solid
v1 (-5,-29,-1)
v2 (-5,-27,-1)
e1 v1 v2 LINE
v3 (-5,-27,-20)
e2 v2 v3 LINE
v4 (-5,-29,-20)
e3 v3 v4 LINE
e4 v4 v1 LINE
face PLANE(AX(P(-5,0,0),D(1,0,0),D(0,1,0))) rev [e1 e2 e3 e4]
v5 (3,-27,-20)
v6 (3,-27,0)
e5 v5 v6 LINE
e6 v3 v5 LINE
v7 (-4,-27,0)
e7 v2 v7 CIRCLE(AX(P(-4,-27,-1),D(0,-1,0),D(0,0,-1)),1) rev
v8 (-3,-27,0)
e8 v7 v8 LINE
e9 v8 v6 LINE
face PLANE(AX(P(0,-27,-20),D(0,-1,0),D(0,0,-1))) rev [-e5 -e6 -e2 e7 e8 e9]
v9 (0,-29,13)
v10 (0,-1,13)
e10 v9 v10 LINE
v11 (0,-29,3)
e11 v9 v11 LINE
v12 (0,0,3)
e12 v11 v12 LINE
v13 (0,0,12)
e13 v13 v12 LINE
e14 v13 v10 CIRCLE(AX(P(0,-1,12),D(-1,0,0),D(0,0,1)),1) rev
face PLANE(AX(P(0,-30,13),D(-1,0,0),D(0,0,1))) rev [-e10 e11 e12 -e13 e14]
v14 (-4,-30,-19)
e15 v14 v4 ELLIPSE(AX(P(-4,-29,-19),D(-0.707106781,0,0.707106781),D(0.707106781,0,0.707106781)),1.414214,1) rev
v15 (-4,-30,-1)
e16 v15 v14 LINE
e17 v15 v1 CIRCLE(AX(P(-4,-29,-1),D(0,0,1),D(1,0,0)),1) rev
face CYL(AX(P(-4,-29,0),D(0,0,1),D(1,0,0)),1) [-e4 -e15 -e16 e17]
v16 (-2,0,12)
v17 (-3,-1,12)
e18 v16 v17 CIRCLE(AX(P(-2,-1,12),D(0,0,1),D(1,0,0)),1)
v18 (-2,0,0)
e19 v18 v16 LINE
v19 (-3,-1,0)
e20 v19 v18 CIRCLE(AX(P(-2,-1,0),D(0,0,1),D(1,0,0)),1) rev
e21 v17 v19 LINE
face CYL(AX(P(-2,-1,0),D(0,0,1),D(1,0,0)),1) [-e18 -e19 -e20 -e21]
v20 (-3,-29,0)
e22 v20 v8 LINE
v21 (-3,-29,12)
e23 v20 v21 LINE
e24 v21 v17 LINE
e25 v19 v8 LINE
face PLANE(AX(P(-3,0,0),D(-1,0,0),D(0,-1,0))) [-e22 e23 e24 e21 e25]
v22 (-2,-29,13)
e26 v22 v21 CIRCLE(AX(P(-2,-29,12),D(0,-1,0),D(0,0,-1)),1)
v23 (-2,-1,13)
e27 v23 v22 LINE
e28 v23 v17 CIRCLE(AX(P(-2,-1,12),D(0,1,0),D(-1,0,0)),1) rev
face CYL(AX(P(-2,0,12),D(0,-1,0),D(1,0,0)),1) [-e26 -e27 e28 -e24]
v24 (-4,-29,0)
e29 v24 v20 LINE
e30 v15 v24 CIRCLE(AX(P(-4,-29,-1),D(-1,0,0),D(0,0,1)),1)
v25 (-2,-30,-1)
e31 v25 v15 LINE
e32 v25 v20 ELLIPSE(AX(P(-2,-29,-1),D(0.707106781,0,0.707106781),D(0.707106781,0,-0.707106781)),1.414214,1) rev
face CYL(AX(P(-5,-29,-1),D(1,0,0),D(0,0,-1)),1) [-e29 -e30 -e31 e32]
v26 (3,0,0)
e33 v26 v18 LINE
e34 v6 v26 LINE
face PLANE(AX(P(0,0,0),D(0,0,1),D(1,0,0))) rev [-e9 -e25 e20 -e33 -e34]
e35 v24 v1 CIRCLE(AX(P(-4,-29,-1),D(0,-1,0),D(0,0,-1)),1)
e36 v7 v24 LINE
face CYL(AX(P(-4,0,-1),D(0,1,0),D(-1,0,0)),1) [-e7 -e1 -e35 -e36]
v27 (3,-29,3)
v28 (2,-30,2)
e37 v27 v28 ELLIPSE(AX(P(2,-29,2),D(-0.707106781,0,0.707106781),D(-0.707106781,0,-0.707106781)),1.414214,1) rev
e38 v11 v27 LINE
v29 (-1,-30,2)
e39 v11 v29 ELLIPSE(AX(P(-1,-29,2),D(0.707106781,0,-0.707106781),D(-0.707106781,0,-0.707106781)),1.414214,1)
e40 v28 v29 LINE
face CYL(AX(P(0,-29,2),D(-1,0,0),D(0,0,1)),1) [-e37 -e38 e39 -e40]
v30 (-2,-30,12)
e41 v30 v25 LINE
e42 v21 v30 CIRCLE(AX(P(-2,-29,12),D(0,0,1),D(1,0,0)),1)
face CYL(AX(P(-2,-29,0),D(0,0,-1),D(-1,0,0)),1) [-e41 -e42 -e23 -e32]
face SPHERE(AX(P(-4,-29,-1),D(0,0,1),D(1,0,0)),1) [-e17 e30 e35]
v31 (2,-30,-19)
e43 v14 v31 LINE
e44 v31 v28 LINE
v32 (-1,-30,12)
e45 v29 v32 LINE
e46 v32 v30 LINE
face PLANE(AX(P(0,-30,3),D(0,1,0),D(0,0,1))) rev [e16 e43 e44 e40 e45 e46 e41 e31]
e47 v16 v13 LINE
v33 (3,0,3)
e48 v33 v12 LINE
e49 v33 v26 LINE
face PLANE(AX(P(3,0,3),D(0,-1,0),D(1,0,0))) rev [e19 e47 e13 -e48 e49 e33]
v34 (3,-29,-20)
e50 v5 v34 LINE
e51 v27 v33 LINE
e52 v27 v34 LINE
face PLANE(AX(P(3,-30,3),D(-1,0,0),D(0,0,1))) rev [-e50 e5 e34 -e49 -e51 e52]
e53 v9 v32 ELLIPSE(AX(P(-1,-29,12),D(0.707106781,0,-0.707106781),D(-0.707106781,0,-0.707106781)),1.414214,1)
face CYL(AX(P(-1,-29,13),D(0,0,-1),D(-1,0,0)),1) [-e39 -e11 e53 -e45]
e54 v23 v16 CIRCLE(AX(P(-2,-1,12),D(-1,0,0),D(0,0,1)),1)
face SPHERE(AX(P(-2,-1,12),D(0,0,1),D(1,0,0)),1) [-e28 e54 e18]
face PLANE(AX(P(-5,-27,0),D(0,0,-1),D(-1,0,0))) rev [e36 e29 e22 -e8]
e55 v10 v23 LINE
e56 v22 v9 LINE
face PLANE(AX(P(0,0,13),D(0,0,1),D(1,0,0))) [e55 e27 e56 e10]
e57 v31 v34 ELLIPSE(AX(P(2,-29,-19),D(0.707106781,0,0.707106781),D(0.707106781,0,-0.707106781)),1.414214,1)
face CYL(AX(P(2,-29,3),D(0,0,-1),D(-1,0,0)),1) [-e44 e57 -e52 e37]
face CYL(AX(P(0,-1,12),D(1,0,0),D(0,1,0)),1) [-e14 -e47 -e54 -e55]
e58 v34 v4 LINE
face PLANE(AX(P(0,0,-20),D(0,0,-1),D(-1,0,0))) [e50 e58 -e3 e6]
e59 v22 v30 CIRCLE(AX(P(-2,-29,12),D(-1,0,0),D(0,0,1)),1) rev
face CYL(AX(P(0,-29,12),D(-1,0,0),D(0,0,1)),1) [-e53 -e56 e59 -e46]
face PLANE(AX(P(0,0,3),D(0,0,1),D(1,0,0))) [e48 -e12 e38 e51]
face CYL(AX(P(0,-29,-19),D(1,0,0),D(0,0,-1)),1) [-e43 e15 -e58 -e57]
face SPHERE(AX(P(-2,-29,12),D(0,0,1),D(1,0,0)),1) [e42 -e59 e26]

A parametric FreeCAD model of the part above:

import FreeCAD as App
import Part
import Sketcher
from FreeCAD import Vector
Q = App.Units.Quantity


def edges_at(feature, points):
    """Names of the edges that pass closest to the given points."""
    edges = feature.Shape.Edges
    near = lambda p: min(range(len(edges)), key=lambda i: edges[i].distToShape(Part.Vertex(*p))[0])
    return sorted({f"Edge{near(p) + 1}" for p in points})

doc = App.newDocument("Part")
body = doc.addObject("PartDesign::Body", "Body")

# Sketch on XY plane
sketch1 = body.newObject("Sketcher::SketchObject", "Sketch")
sketch1.AttachmentSupport = (doc.getObject("XY_Plane"), [""])
sketch1.MapMode = "FlatFace"
sketch1.addGeometry(Part.LineSegment(Vector(0, 0, 0), Vector(0, -30, 0)), False)
sketch1.addGeometry(Part.LineSegment(Vector(0, -30, 0), Vector(3, -30, 0)), False)
sketch1.addGeometry(Part.LineSegment(Vector(3, -30, 0), Vector(3, 0, 0)), False)
sketch1.addGeometry(Part.LineSegment(Vector(3, 0, 0), Vector(0, 0, 0)), False)
sketch1.addConstraint(Sketcher.Constraint("Coincident", 0, 2, 1, 1))
sketch1.addConstraint(Sketcher.Constraint("Coincident", 1, 2, 2, 1))
sketch1.addConstraint(Sketcher.Constraint("Coincident", 2, 2, 3, 1))
sketch1.addConstraint(Sketcher.Constraint("Coincident", 3, 2, 0, 1))
sketch1.addConstraint(Sketcher.Constraint("Vertical", 0))
sketch1.addConstraint(Sketcher.Constraint("Horizontal", 1))
sketch1.addConstraint(Sketcher.Constraint("Vertical", 2))
sketch1.addConstraint(Sketcher.Constraint("Horizontal", 3))
sketch1.addConstraint(Sketcher.Constraint("Coincident", 3, 2, -1, 1))
sketch1.addConstraint(Sketcher.Constraint("DistanceX", 1, 1, 1, 2, Q("3 mm")))
sketch1.addConstraint(Sketcher.Constraint("DistanceY", 0, 2, 0, 1, Q("30 mm")))
pad1 = body.newObject("PartDesign::Pad", "Pad")
pad1.Profile = sketch1
pad1.Length = 3

# Sketch on XY plane
sketch2 = body.newObject("Sketcher::SketchObject", "Sketch001")
sketch2.AttachmentSupport = (doc.getObject("XY_Plane"), [""])
sketch2.MapMode = "FlatFace"
sketch2.addGeometry(Part.LineSegment(Vector(3, -27, 0), Vector(3, -30, 0)), False)
sketch2.addGeometry(Part.LineSegment(Vector(3, -30, 0), Vector(0, -30, 0)), False)
sketch2.addGeometry(Part.LineSegment(Vector(0, -30, 0), Vector(0, -27, 0)), False)
sketch2.addGeometry(Part.LineSegment(Vector(0, -27, 0), Vector(3, -27, 0)), False)
sketch2.addConstraint(Sketcher.Constraint("Coincident", 0, 2, 1, 1))
sketch2.addConstraint(Sketcher.Constraint("Coincident", 1, 2, 2, 1))
sketch2.addConstraint(Sketcher.Constraint("Coincident", 2, 2, 3, 1))
sketch2.addConstraint(Sketcher.Constraint("Coincident", 3, 2, 0, 1))
sketch2.addConstraint(Sketcher.Constraint("Vertical", 0))
sketch2.addConstraint(Sketcher.Constraint("Horizontal", 1))
sketch2.addConstraint(Sketcher.Constraint("Vertical", 2))
sketch2.addConstraint(Sketcher.Constraint("Horizontal", 3))
sketch2.addConstraint(Sketcher.Constraint("PointOnObject", 1, 2, -2))
sketch2.addConstraint(Sketcher.Constraint("Equal", 3, 0))
sketch2.addConstraint(Sketcher.Constraint("DistanceX", 1, 2, 1, 1, Q("3 mm")))
sketch2.addConstraint(Sketcher.Constraint("DistanceY", 0, 2, -1, 1, Q("30 mm")))
pad2 = body.newObject("PartDesign::Pad", "Pad001")
pad2.Profile = sketch2
pad2.Length = 20
pad2.Reversed = True

# Sketch on YZ plane
sketch3 = body.newObject("Sketcher::SketchObject", "Sketch002")
sketch3.AttachmentSupport = (doc.getObject("YZ_Plane"), [""])
sketch3.MapMode = "FlatFace"
sketch3.addGeometry(Part.LineSegment(Vector(-27, -20, 0), Vector(-30, -20, 0)), False)
sketch3.addGeometry(Part.LineSegment(Vector(-30, -20, 0), Vector(-30, 0, 0)), False)
sketch3.addGeometry(Part.LineSegment(Vector(-30, 0, 0), Vector(-27, 0, 0)), False)
sketch3.addGeometry(Part.LineSegment(Vector(-27, 0, 0), Vector(-27, -20, 0)), False)
sketch3.addConstraint(Sketcher.Constraint("Coincident", 0, 2, 1, 1))
sketch3.addConstraint(Sketcher.Constraint("Coincident", 1, 2, 2, 1))
sketch3.addConstraint(Sketcher.Constraint("Coincident", 2, 2, 3, 1))
sketch3.addConstraint(Sketcher.Constraint("Coincident", 3, 2, 0, 1))
sketch3.addConstraint(Sketcher.Constraint("Horizontal", 0))
sketch3.addConstraint(Sketcher.Constraint("Vertical", 1))
sketch3.addConstraint(Sketcher.Constraint("Horizontal", 2))
sketch3.addConstraint(Sketcher.Constraint("Vertical", 3))
sketch3.addConstraint(Sketcher.Constraint("PointOnObject", 1, 2, -1))
sketch3.addConstraint(Sketcher.Constraint("DistanceX", 0, 2, 0, 1, Q("3 mm")))
sketch3.addConstraint(Sketcher.Constraint("DistanceY", 1, 1, 1, 2, Q("20 mm")))
sketch3.addConstraint(Sketcher.Constraint("DistanceX", 0, 2, -1, 1, Q("30 mm")))
pad3 = body.newObject("PartDesign::Pad", "Pad002")
pad3.Profile = sketch3
pad3.Length = 5
pad3.Reversed = True

# Sketch on YZ plane
sketch4 = body.newObject("Sketcher::SketchObject", "Sketch003")
sketch4.AttachmentSupport = (doc.getObject("YZ_Plane"), [""])
sketch4.MapMode = "FlatFace"
sketch4.addGeometry(Part.LineSegment(Vector(0, 0, 0), Vector(-30, 0, 0)), False)
sketch4.addGeometry(Part.LineSegment(Vector(-30, 0, 0), Vector(-30, 3, 0)), False)
sketch4.addGeometry(Part.LineSegment(Vector(-30, 3, 0), Vector(0, 3, 0)), False)
sketch4.addGeometry(Part.LineSegment(Vector(0, 3, 0), Vector(0, 0, 0)), False)
sketch4.addConstraint(Sketcher.Constraint("Coincident", 0, 2, 1, 1))
sketch4.addConstraint(Sketcher.Constraint("Coincident", 1, 2, 2, 1))
sketch4.addConstraint(Sketcher.Constraint("Coincident", 2, 2, 3, 1))
sketch4.addConstraint(Sketcher.Constraint("Coincident", 3, 2, 0, 1))
sketch4.addConstraint(Sketcher.Constraint("Horizontal", 0))
sketch4.addConstraint(Sketcher.Constraint("Vertical", 1))
sketch4.addConstraint(Sketcher.Constraint("Horizontal", 2))
sketch4.addConstraint(Sketcher.Constraint("Vertical", 3))
sketch4.addConstraint(Sketcher.Constraint("Coincident", 3, 2, -1, 1))
sketch4.addConstraint(Sketcher.Constraint("DistanceX", 0, 2, 0, 1, Q("30 mm")))
sketch4.addConstraint(Sketcher.Constraint("DistanceY", 1, 1, 1, 2, Q("3 mm")))
pad4 = body.newObject("PartDesign::Pad", "Pad003")
pad4.Profile = sketch4
pad4.Length = 3
pad4.Reversed = True

# Sketch on XY plane
sketch5 = body.newObject("Sketcher::SketchObject", "Sketch004")
sketch5.AttachmentSupport = (doc.getObject("XY_Plane"), [""])
sketch5.MapMode = "FlatFace"
sketch5.AttachmentOffset = App.Placement(Vector(0, 0, 3), App.Rotation())
sketch5.addGeometry(Part.LineSegment(Vector(-3, 0, 0), Vector(-3, -30, 0)), False)
sketch5.addGeometry(Part.LineSegment(Vector(-3, -30, 0), Vector(0, -30, 0)), False)
sketch5.addGeometry(Part.LineSegment(Vector(0, -30, 0), Vector(0, 0, 0)), False)
sketch5.addGeometry(Part.LineSegment(Vector(0, 0, 0), Vector(-3, 0, 0)), False)
sketch5.addConstraint(Sketcher.Constraint("Coincident", 0, 2, 1, 1))
sketch5.addConstraint(Sketcher.Constraint("Coincident", 1, 2, 2, 1))
sketch5.addConstraint(Sketcher.Constraint("Coincident", 2, 2, 3, 1))
sketch5.addConstraint(Sketcher.Constraint("Coincident", 3, 2, 0, 1))
sketch5.addConstraint(Sketcher.Constraint("Vertical", 0))
sketch5.addConstraint(Sketcher.Constraint("Horizontal", 1))
sketch5.addConstraint(Sketcher.Constraint("Vertical", 2))
sketch5.addConstraint(Sketcher.Constraint("Horizontal", 3))
sketch5.addConstraint(Sketcher.Constraint("Coincident", 2, 2, -1, 1))
sketch5.addConstraint(Sketcher.Constraint("DistanceX", 1, 1, 1, 2, Q("3 mm")))
sketch5.addConstraint(Sketcher.Constraint("DistanceY", 0, 2, 0, 1, Q("30 mm")))
pad5 = body.newObject("PartDesign::Pad", "Pad004")
pad5.Profile = sketch5
pad5.Length = 10
doc.recompute()

fillet = body.newObject("PartDesign::Fillet", "Fillet")
fillet.Base = (pad5, edges_at(pad5, [
    (-1, -30, -20),
    (-4, -30, 0),
    (-5, -30, -10),
    (-5, -28.5, 0),
    (-3, 0, 6.5),
    (-3, -30, 6.5),
    (1.5, -30, 3),
    (0, -30, 8),
    (-1.5, 0, 13),
    (-3, -15, 13),
    (-1.5, -30, 13),
    (3, -30, -8.5),
]))
fillet.Radius = 1

doc.recompute()
